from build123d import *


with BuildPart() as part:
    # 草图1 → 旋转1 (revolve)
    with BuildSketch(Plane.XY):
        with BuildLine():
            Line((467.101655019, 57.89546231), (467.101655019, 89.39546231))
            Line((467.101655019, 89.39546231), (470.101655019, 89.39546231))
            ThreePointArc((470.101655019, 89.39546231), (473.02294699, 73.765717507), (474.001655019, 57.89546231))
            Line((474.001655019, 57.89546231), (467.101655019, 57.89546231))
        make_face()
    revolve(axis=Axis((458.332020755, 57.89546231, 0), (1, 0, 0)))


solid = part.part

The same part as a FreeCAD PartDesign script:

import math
import FreeCAD as App
import Part
import Sketcher

V = App.Vector

doc = App.newDocument("Part")
params = doc.addObject("Spreadsheet::Sheet", "Params")
for row, (alias, value) in enumerate([
    ("sketch1_width", "3 mm"),
    ("sketch1_width2", "6.9 mm"),
    ("sketch1_height", "31.5 mm"),
    ("revolution_angle", "360 deg"),
], start=1):
    params.set(f"A{row}", alias)
    params.set(f"B{row}", "=" + value)
    params.setAlias(f"B{row}", alias)

body = doc.addObject("PartDesign::Body", "Body")

sketch1 = doc.addObject("Sketcher::SketchObject", "Sketch")
body.addObject(sketch1)
sketch1.AttachmentSupport = (doc.XY_Plane, [""])
sketch1.MapMode = "FlatFace"
sketch1.addGeometry([
    Part.LineSegment(V(467.1, 89.4, 0), V(467.1, 57.9, 0)),
    Part.LineSegment(V(467.1, 57.9, 0), V(474, 57.9, 0)),
    Part.ArcOfCircle(Part.Circle(V(344.8, 57.9, 0), V(0, 0, 1), 129.2), math.radians(0), math.radians(14.12)),
    Part.LineSegment(V(470.1, 89.4, 0), V(467.1, 89.4, 0)),
], False)
sketch1.addGeometry(Part.LineSegment(V(344.8, 57.9, 0), V(474, 57.9, 0)), True)
sketch1.addConstraint([
    Sketcher.Constraint("Coincident", 0, 2, 1, 1),
    Sketcher.Constraint("Coincident", 1, 2, 2, 1),
    Sketcher.Constraint("Coincident", 2, 2, 3, 1),
    Sketcher.Constraint("Coincident", 3, 2, 0, 1),
    Sketcher.Constraint("Vertical", 0),
    Sketcher.Constraint("Horizontal", 1),
    Sketcher.Constraint("Horizontal", 3),
    Sketcher.Constraint("Horizontal", 4),
    Sketcher.Constraint("Coincident", 4, 1, 2, 3),
    Sketcher.Constraint("Coincident", 4, 2, 1, 2),
    Sketcher.Constraint("DistanceX", 3, 2, 3, 1, 3.0),
    Sketcher.Constraint("DistanceX", 1, 1, 1, 2, 6.9),
    Sketcher.Constraint("DistanceY", 0, 2, 0, 1, 31.5),
    Sketcher.Constraint("DistanceX", -1, 1, 2, 3, 344.840117),
    Sketcher.Constraint("DistanceY", -1, 1, 2, 3, 57.895462),
])
sketch1.setExpression("Constraints[10]", "Params.sketch1_width")
sketch1.setExpression("Constraints[11]", "Params.sketch1_width2")
sketch1.setExpression("Constraints[12]", "Params.sketch1_height")
revolution = doc.addObject("PartDesign::Revolution", "Revolution")
body.addObject(revolution)
revolution.Profile = sketch1
revolution.ReferenceAxis = (sketch1, ["Axis0"])
revolution.setExpression("Angle", "Params.revolution_angle")

doc.recompute()
